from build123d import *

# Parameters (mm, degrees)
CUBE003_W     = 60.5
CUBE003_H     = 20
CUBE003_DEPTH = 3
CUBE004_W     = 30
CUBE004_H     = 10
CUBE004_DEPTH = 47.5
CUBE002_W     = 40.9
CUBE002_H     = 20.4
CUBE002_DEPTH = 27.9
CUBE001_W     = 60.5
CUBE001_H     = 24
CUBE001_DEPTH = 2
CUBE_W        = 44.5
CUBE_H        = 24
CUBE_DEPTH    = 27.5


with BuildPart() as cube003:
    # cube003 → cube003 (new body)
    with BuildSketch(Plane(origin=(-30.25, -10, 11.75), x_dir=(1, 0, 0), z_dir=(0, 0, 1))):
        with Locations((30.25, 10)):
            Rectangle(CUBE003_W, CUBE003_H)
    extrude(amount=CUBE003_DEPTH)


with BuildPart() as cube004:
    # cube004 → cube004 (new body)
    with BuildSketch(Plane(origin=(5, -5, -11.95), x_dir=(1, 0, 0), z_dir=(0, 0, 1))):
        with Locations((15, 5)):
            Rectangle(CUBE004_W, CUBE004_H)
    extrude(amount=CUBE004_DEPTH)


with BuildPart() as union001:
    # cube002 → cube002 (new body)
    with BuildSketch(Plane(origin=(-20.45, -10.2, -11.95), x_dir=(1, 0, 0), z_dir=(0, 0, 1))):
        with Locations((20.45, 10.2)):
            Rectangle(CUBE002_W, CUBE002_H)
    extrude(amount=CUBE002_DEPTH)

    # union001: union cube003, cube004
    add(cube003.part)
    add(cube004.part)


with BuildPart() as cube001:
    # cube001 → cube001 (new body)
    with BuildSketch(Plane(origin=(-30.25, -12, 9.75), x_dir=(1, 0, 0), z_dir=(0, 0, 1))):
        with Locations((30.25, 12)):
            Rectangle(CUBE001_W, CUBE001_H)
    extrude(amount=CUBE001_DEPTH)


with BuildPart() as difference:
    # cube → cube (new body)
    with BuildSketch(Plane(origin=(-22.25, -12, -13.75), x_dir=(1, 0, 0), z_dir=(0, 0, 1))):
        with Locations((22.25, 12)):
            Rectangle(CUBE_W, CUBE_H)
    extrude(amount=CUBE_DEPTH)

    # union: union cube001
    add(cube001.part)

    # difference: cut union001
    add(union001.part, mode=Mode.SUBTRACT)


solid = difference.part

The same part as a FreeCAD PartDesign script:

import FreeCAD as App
import Part
import Sketcher
from FreeCAD import Vector
Q = App.Units.Quantity

doc = App.newDocument("Part")
body = doc.addObject("PartDesign::Body", "Body")

sketch1 = body.newObject("Sketcher::SketchObject", "Sketch")
sketch1.AttachmentSupport = (doc.getObject("XY_Plane"), [""])
sketch1.MapMode = "FlatFace"
sketch1.AttachmentOffset = App.Placement(Vector(0, 0, 11.75), App.Rotation())
sketch1.addGeometry(Part.LineSegment(Vector(-30, 10, 0), Vector(-30, -10, 0)), False)
sketch1.addGeometry(Part.LineSegment(Vector(-30, -10, 0), Vector(30, -10, 0)), False)
sketch1.addGeometry(Part.LineSegment(Vector(30, -10, 0), Vector(30, 10, 0)), False)
sketch1.addGeometry(Part.LineSegment(Vector(30, 10, 0), Vector(-30, 10, 0)), False)
sketch1.addConstraint(Sketcher.Constraint("Coincident", 0, 2, 1, 1))
sketch1.addConstraint(Sketcher.Constraint("Coincident", 1, 2, 2, 1))
sketch1.addConstraint(Sketcher.Constraint("Coincident", 2, 2, 3, 1))
sketch1.addConstraint(Sketcher.Constraint("Coincident", 3, 2, 0, 1))
sketch1.addConstraint(Sketcher.Constraint("Vertical", 0))
sketch1.addConstraint(Sketcher.Constraint("Horizontal", 1))
sketch1.addConstraint(Sketcher.Constraint("Vertical", 2))
sketch1.addConstraint(Sketcher.Constraint("Horizontal", 3))
sketch1.addConstraint(Sketcher.Constraint("Symmetric", 0, 2, 2, 2, -1, 1))
sketch1.addConstraint(Sketcher.Constraint("DistanceY", 0, 2, 0, 1, Q("20 mm")))
sketch1.addConstraint(Sketcher.Constraint("DistanceX", 1, 1, 1, 2, Q("60.5 mm")))
pad1 = body.newObject("PartDesign::Pad", "Pad")
pad1.Profile = sketch1
pad1.Length = 3
body2 = doc.addObject("PartDesign::Body", "Body001")

sketch2 = body2.newObject("Sketcher::SketchObject", "Sketch001")
sketch2.AttachmentSupport = (doc.getObject("XY_Plane001"), [""])
sketch2.MapMode = "FlatFace"
sketch2.AttachmentOffset = App.Placement(Vector(0, 0, -11.95), App.Rotation())
sketch2.addGeometry(Part.LineSegment(Vector(5, 5, 0), Vector(5, -5, 0)), False)
sketch2.addGeometry(Part.LineSegment(Vector(5, -5, 0), Vector(35, -5, 0)), False)
sketch2.addGeometry(Part.LineSegment(Vector(35, -5, 0), Vector(35, 5, 0)), False)
sketch2.addGeometry(Part.LineSegment(Vector(35, 5, 0), Vector(5, 5, 0)), False)
sketch2.addConstraint(Sketcher.Constraint("Coincident", 0, 2, 1, 1))
sketch2.addConstraint(Sketcher.Constraint("Coincident", 1, 2, 2, 1))
sketch2.addConstraint(Sketcher.Constraint("Coincident", 2, 2, 3, 1))
sketch2.addConstraint(Sketcher.Constraint("Coincident", 3, 2, 0, 1))
sketch2.addConstraint(Sketcher.Constraint("Vertical", 0))
sketch2.addConstraint(Sketcher.Constraint("Horizontal", 1))
sketch2.addConstraint(Sketcher.Constraint("Vertical", 2))
sketch2.addConstraint(Sketcher.Constraint("Horizontal", 3))
sketch2.addConstraint(Sketcher.Constraint("DistanceX", 1, 1, 1, 2, Q("30 mm")))
sketch2.addConstraint(Sketcher.Constraint("DistanceY", 0, 2, 0, 1, Q("10 mm")))
sketch2.addConstraint(Sketcher.Constraint("DistanceX", -1, 1, 0, 2, Q("5 mm")))
sketch2.addConstraint(Sketcher.Constraint("DistanceY", 0, 2, -1, 1, Q("5 mm")))
pad2 = body2.newObject("PartDesign::Pad", "Pad001")
pad2.Profile = sketch2
pad2.Length = 47.5
body3 = doc.addObject("PartDesign::Body", "Body002")

sketch3 = body3.newObject("Sketcher::SketchObject", "Sketch002")
sketch3.AttachmentSupport = (doc.getObject("XY_Plane002"), [""])
sketch3.MapMode = "FlatFace"
sketch3.AttachmentOffset = App.Placement(Vector(0, 0, -11.95), App.Rotation())
sketch3.addGeometry(Part.LineSegment(Vector(-20, 10, 0), Vector(-20, -10, 0)), False)
sketch3.addGeometry(Part.LineSegment(Vector(-20, -10, 0), Vector(20, -10, 0)), False)
sketch3.addGeometry(Part.LineSegment(Vector(20, -10, 0), Vector(20, 10, 0)), False)
sketch3.addGeometry(Part.LineSegment(Vector(20, 10, 0), Vector(-20, 10, 0)), False)
sketch3.addConstraint(Sketcher.Constraint("Coincident", 0, 2, 1, 1))
sketch3.addConstraint(Sketcher.Constraint("Coincident", 1, 2, 2, 1))
sketch3.addConstraint(Sketcher.Constraint("Coincident", 2, 2, 3, 1))
sketch3.addConstraint(Sketcher.Constraint("Coincident", 3, 2, 0, 1))
sketch3.addConstraint(Sketcher.Constraint("Vertical", 0))
sketch3.addConstraint(Sketcher.Constraint("Horizontal", 1))
sketch3.addConstraint(Sketcher.Constraint("Vertical", 2))
sketch3.addConstraint(Sketcher.Constraint("Horizontal", 3))
sketch3.addConstraint(Sketcher.Constraint("Symmetric", 0, 2, 2, 2, -1, 1))
sketch3.addConstraint(Sketcher.Constraint("DistanceX", 1, 1, 1, 2, Q("40.9 mm")))
sketch3.addConstraint(Sketcher.Constraint("DistanceY", 0, 2, 0, 1, Q("20.4 mm")))
pad3 = body3.newObject("PartDesign::Pad", "Pad002")
pad3.Profile = sketch3
pad3.Length = 27.9
doc.recompute()

boolean = body3.newObject("PartDesign::Boolean", "Boolean")
boolean.Type = "Fuse"
boolean.addObjects([body])
doc.recompute()

boolean2 = body3.newObject("PartDesign::Boolean", "Boolean001")
boolean2.Type = "Fuse"
boolean2.addObjects([body2])
body4 = doc.addObject("PartDesign::Body", "Body003")

sketch4 = body4.newObject("Sketcher::SketchObject", "Sketch003")
sketch4.AttachmentSupport = (doc.getObject("XY_Plane003"), [""])
sketch4.MapMode = "FlatFace"
sketch4.AttachmentOffset = App.Placement(Vector(0, 0, 9.75), App.Rotation())
sketch4.addGeometry(Part.LineSegment(Vector(-30, 12, 0), Vector(-30, -12, 0)), False)
sketch4.addGeometry(Part.LineSegment(Vector(-30, -12, 0), Vector(30, -12, 0)), False)
sketch4.addGeometry(Part.LineSegment(Vector(30, -12, 0), Vector(30, 12, 0)), False)
sketch4.addGeometry(Part.LineSegment(Vector(30, 12, 0), Vector(-30, 12, 0)), False)
sketch4.addConstraint(Sketcher.Constraint("Coincident", 0, 2, 1, 1))
sketch4.addConstraint(Sketcher.Constraint("Coincident", 1, 2, 2, 1))
sketch4.addConstraint(Sketcher.Constraint("Coincident", 2, 2, 3, 1))
sketch4.addConstraint(Sketcher.Constraint("Coincident", 3, 2, 0, 1))
sketch4.addConstraint(Sketcher.Constraint("Vertical", 0))
sketch4.addConstraint(Sketcher.Constraint("Horizontal", 1))
sketch4.addConstraint(Sketcher.Constraint("Vertical", 2))
sketch4.addConstraint(Sketcher.Constraint("Horizontal", 3))
sketch4.addConstraint(Sketcher.Constraint("Symmetric", 0, 2, 2, 2, -1, 1))
sketch4.addConstraint(Sketcher.Constraint("DistanceY", 0, 2, 0, 1, Q("24 mm")))
sketch4.addConstraint(Sketcher.Constraint("DistanceX", 1, 1, 1, 2, Q("60.5 mm")))
pad4 = body4.newObject("PartDesign::Pad", "Pad003")
pad4.Profile = sketch4
pad4.Length = 2
body5 = doc.addObject("PartDesign::Body", "Body004")

sketch5 = body5.newObject("Sketcher::SketchObject", "Sketch004")
sketch5.AttachmentSupport = (doc.getObject("XY_Plane004"), [""])
sketch5.MapMode = "FlatFace"
sketch5.AttachmentOffset = App.Placement(Vector(0, 0, -13.75), App.Rotation())
sketch5.addGeometry(Part.LineSegment(Vector(-22, 12, 0), Vector(-22, -12, 0)), False)
sketch5.addGeometry(Part.LineSegment(Vector(-22, -12, 0), Vector(22, -12, 0)), False)
sketch5.addGeometry(Part.LineSegment(Vector(22, -12, 0), Vector(22, 12, 0)), False)
sketch5.addGeometry(Part.LineSegment(Vector(22, 12, 0), Vector(-22, 12, 0)), False)
sketch5.addConstraint(Sketcher.Constraint("Coincident", 0, 2, 1, 1))
sketch5.addConstraint(Sketcher.Constraint("Coincident", 1, 2, 2, 1))
sketch5.addConstraint(Sketcher.Constraint("Coincident", 2, 2, 3, 1))
sketch5.addConstraint(Sketcher.Constraint("Coincident", 3, 2, 0, 1))
sketch5.addConstraint(Sketcher.Constraint("Vertical", 0))
sketch5.addConstraint(Sketcher.Constraint("Horizontal", 1))
sketch5.addConstraint(Sketcher.Constraint("Vertical", 2))
sketch5.addConstraint(Sketcher.Constraint("Horizontal", 3))
sketch5.addConstraint(Sketcher.Constraint("Symmetric", 0, 2, 2, 2, -1, 1))
sketch5.addConstraint(Sketcher.Constraint("DistanceY", 0, 2, 0, 1, Q("24 mm")))
sketch5.addConstraint(Sketcher.Constraint("DistanceX", 1, 1, 1, 2, Q("44.5 mm")))
pad5 = body5.newObject("PartDesign::Pad", "Pad004")
pad5.Profile = sketch5
pad5.Length = 27.5
doc.recompute()

boolean3 = body5.newObject("PartDesign::Boolean", "Boolean002")
boolean3.Type = "Fuse"
boolean3.addObjects([body4])
doc.recompute()

boolean4 = body5.newObject("PartDesign::Boolean", "Boolean003")
boolean4.Type = "Cut"
boolean4.addObjects([body3])

doc.recompute()
